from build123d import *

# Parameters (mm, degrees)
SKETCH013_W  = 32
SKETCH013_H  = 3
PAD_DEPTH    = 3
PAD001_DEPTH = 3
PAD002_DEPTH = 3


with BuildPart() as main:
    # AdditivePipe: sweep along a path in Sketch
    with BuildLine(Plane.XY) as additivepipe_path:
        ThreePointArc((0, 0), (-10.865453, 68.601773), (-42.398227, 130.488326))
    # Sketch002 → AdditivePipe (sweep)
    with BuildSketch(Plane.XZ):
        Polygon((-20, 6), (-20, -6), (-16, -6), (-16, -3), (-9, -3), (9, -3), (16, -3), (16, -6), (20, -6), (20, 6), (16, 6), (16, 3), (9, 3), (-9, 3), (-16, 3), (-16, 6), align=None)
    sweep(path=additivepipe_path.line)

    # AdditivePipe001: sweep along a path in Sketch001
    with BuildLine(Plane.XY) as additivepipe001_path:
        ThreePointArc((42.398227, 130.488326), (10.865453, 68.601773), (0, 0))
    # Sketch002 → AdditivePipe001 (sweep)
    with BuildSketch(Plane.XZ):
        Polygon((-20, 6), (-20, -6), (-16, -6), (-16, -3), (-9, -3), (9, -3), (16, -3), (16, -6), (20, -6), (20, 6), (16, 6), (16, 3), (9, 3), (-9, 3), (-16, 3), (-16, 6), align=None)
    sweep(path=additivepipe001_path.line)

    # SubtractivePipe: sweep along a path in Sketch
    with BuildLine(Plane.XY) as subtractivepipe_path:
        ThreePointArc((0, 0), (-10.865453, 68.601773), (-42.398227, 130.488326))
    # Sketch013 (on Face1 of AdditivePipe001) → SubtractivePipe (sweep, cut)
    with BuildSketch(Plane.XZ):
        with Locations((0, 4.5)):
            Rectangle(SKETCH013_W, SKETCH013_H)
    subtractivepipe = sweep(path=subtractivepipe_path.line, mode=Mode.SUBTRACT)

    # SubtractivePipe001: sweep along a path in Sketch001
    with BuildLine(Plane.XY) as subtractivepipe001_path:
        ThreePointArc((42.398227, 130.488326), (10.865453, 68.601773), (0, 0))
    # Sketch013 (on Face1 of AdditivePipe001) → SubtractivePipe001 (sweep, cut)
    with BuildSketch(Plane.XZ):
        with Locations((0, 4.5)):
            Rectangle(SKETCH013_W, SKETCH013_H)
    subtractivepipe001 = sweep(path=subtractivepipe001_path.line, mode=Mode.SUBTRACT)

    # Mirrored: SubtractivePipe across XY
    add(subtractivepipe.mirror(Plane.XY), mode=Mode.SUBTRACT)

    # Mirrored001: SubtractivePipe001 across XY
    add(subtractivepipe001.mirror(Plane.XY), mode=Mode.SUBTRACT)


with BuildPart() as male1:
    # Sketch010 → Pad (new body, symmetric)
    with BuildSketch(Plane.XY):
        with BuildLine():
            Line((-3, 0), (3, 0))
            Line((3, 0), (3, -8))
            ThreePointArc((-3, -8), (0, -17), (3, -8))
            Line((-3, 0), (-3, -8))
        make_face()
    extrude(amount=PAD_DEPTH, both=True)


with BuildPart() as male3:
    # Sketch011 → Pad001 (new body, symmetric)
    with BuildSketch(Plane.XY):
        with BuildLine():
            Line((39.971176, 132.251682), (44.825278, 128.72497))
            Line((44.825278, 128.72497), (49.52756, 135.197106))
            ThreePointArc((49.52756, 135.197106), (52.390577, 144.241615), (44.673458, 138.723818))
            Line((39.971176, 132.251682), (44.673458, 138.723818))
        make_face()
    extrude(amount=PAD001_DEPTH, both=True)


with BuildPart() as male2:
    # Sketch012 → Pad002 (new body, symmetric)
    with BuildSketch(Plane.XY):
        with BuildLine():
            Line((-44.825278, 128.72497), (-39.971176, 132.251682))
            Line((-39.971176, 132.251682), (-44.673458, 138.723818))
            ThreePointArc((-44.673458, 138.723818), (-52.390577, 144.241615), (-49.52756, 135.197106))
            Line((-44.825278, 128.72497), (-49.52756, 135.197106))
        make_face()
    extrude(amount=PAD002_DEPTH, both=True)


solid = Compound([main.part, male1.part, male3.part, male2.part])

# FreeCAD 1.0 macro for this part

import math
import FreeCAD as App
import Part
import Sketcher
Q = App.Units.Quantity

doc = App.newDocument("Part")
params = doc.addObject("Spreadsheet::Sheet", "Params")
for row, (alias, value) in enumerate([
    ("sketch1_width", "4 mm"),
    ("sketch1_width2", "32 mm"),
    ("sketch1_height", "12 mm"),
    ("sketch1_height2", "3 mm"),
    ("sketch3_width", "4 mm"),
    ("sketch3_width2", "32 mm"),
    ("sketch3_height", "12 mm"),
    ("sketch3_height2", "3 mm"),
    ("sketch5_width", "32 mm"),
    ("sketch5_height", "3 mm"),
    ("sketch7_width", "32 mm"),
    ("sketch7_height", "3 mm"),
    ("sketch9_radius", "5 mm"),
    ("sketch9_width", "6 mm"),
    ("sketch9_height", "8 mm"),
    ("pad1_length", "6 mm"),
    ("sketch10_radius", "5 mm"),
    ("sketch10_length", "6 mm"),
    ("sketch10_length2", "8 mm"),
    ("pad2_length", "6 mm"),
    ("sketch11_radius", "5 mm"),
    ("sketch11_length", "6 mm"),
    ("sketch11_length2", "8 mm"),
    ("pad3_length", "6 mm"),
], start=1):
    params.set(f"A{row}", alias)
    params.set(f"B{row}", "=" + value)
    params.setAlias(f"B{row}", alias)

body = doc.addObject("PartDesign::Body", "Body")

sketch1 = doc.addObject("Sketcher::SketchObject", "Sketch")
body.addObject(sketch1)
sketch1.AttachmentSupport = (doc.XZ_Plane, [""])
sketch1.MapMode = "FlatFace"
sketch1.addGeometry(Part.LineSegment(App.Vector(-20, 6, 0), App.Vector(-20, -6, 0)), False)
sketch1.addGeometry(Part.LineSegment(App.Vector(-20, -6, 0), App.Vector(-16, -6, 0)), False)
sketch1.addGeometry(Part.LineSegment(App.Vector(-16, -6, 0), App.Vector(-16, -3, 0)), False)
sketch1.addGeometry(Part.LineSegment(App.Vector(-16, -3, 0), App.Vector(16, -3, 0)), False)
sketch1.addGeometry(Part.LineSegment(App.Vector(16, -3, 0), App.Vector(16, -6, 0)), False)
sketch1.addGeometry(Part.LineSegment(App.Vector(16, -6, 0), App.Vector(20, -6, 0)), False)
sketch1.addGeometry(Part.LineSegment(App.Vector(20, -6, 0), App.Vector(20, 6, 0)), False)
sketch1.addGeometry(Part.LineSegment(App.Vector(20, 6, 0), App.Vector(16, 6, 0)), False)
sketch1.addGeometry(Part.LineSegment(App.Vector(16, 6, 0), App.Vector(16, 3, 0)), False)
sketch1.addGeometry(Part.LineSegment(App.Vector(16, 3, 0), App.Vector(-16, 3, 0)), False)
sketch1.addGeometry(Part.LineSegment(App.Vector(-16, 3, 0), App.Vector(-16, 6, 0)), False)
sketch1.addGeometry(Part.LineSegment(App.Vector(-16, 6, 0), App.Vector(-20, 6, 0)), False)
sketch1.addConstraint(Sketcher.Constraint("Coincident", 0, 2, 1, 1))
sketch1.addConstraint(Sketcher.Constraint("Coincident", 1, 2, 2, 1))
sketch1.addConstraint(Sketcher.Constraint("Coincident", 2, 2, 3, 1))
sketch1.addConstraint(Sketcher.Constraint("Coincident", 3, 2, 4, 1))
sketch1.addConstraint(Sketcher.Constraint("Coincident", 4, 2, 5, 1))
sketch1.addConstraint(Sketcher.Constraint("Coincident", 5, 2, 6, 1))
sketch1.addConstraint(Sketcher.Constraint("Coincident", 6, 2, 7, 1))
sketch1.addConstraint(Sketcher.Constraint("Coincident", 7, 2, 8, 1))
sketch1.addConstraint(Sketcher.Constraint("Coincident", 8, 2, 9, 1))
sketch1.addConstraint(Sketcher.Constraint("Coincident", 9, 2, 10, 1))
sketch1.addConstraint(Sketcher.Constraint("Coincident", 10, 2, 11, 1))
sketch1.addConstraint(Sketcher.Constraint("Coincident", 11, 2, 0, 1))
sketch1.addConstraint(Sketcher.Constraint("Vertical", 0))
sketch1.addConstraint(Sketcher.Constraint("Horizontal", 1))
sketch1.addConstraint(Sketcher.Constraint("Vertical", 2))
sketch1.addConstraint(Sketcher.Constraint("Horizontal", 3))
sketch1.addConstraint(Sketcher.Constraint("Vertical", 4))
sketch1.addConstraint(Sketcher.Constraint("Horizontal", 5))
sketch1.addConstraint(Sketcher.Constraint("Vertical", 6))
sketch1.addConstraint(Sketcher.Constraint("Horizontal", 7))
sketch1.addConstraint(Sketcher.Constraint("Vertical", 8))
sketch1.addConstraint(Sketcher.Constraint("Horizontal", 9))
sketch1.addConstraint(Sketcher.Constraint("Vertical", 10))
sketch1.addConstraint(Sketcher.Constraint("Horizontal", 11))
sketch1.addConstraint(Sketcher.Constraint("Symmetric", 0, 2, 6, 2, -1, 1))
sketch1.addConstraint(Sketcher.Constraint("Symmetric", 2, 2, 8, 2, -1, 1))
sketch1.addConstraint(Sketcher.Constraint("Symmetric", 4, 2, 10, 2, -1, 1))
sketch1.addConstraint(Sketcher.Constraint("Symmetric", 1, 2, 4, 2, -2))
sketch1.addConstraint(Sketcher.Constraint("DistanceX", 1, 1, 1, 2, Q("4 mm")))
sketch1.addConstraint(Sketcher.Constraint("DistanceX", 3, 1, 3, 2, Q("32 mm")))
sketch1.addConstraint(Sketcher.Constraint("DistanceY", 0, 2, 0, 1, Q("12 mm")))
sketch1.addConstraint(Sketcher.Constraint("DistanceY", 2, 1, 2, 2, Q("3 mm")))
sketch1.setExpression("Constraints[28]", "Params.sketch1_width")
sketch1.setExpression("Constraints[29]", "Params.sketch1_width2")
sketch1.setExpression("Constraints[30]", "Params.sketch1_height")
sketch1.setExpression("Constraints[31]", "Params.sketch1_height2")

sketch2 = doc.addObject("Sketcher::SketchObject", "Sketch001")
body.addObject(sketch2)
sketch2.AttachmentSupport = (doc.XY_Plane, [""])
sketch2.MapMode = "FlatFace"
sketch2.addGeometry(Part.ArcOfCircle(Part.Circle(App.Vector(-222, 0, 0), App.Vector(0, 0, 1), 222), math.radians(0), math.radians(36)), False)
sketch2.addConstraint(Sketcher.Constraint("Coincident", 0, 1, -1, 1))
sketch2.addConstraint(Sketcher.Constraint("Radius", 0, Q("221.999993 mm")))
sketch2.addConstraint(Sketcher.Constraint("DistanceX", 0, 2, -1, 1, Q("42.398227 mm")))
sketch2.addConstraint(Sketcher.Constraint("DistanceY", -1, 1, 0, 2, Q("130.488326 mm")))
doc.recompute()

additivepipe = doc.addObject("PartDesign::AdditivePipe", "AdditivePipe")
body.addObject(additivepipe)
additivepipe.Profile = sketch1
additivepipe.Spine = (sketch2, ["Edge1"])

sketch3 = doc.addObject("Sketcher::SketchObject", "Sketch002")
body.addObject(sketch3)
sketch3.AttachmentSupport = (doc.XZ_Plane, [""])
sketch3.MapMode = "FlatFace"
sketch3.addGeometry(Part.LineSegment(App.Vector(-20, 6, 0), App.Vector(-20, -6, 0)), False)
sketch3.addGeometry(Part.LineSegment(App.Vector(-20, -6, 0), App.Vector(-16, -6, 0)), False)
sketch3.addGeometry(Part.LineSegment(App.Vector(-16, -6, 0), App.Vector(-16, -3, 0)), False)
sketch3.addGeometry(Part.LineSegment(App.Vector(-16, -3, 0), App.Vector(16, -3, 0)), False)
sketch3.addGeometry(Part.LineSegment(App.Vector(16, -3, 0), App.Vector(16, -6, 0)), False)
sketch3.addGeometry(Part.LineSegment(App.Vector(16, -6, 0), App.Vector(20, -6, 0)), False)
sketch3.addGeometry(Part.LineSegment(App.Vector(20, -6, 0), App.Vector(20, 6, 0)), False)
sketch3.addGeometry(Part.LineSegment(App.Vector(20, 6, 0), App.Vector(16, 6, 0)), False)
sketch3.addGeometry(Part.LineSegment(App.Vector(16, 6, 0), App.Vector(16, 3, 0)), False)
sketch3.addGeometry(Part.LineSegment(App.Vector(16, 3, 0), App.Vector(-16, 3, 0)), False)
sketch3.addGeometry(Part.LineSegment(App.Vector(-16, 3, 0), App.Vector(-16, 6, 0)), False)
sketch3.addGeometry(Part.LineSegment(App.Vector(-16, 6, 0), App.Vector(-20, 6, 0)), False)
sketch3.addConstraint(Sketcher.Constraint("Coincident", 0, 2, 1, 1))
sketch3.addConstraint(Sketcher.Constraint("Coincident", 1, 2, 2, 1))
sketch3.addConstraint(Sketcher.Constraint("Coincident", 2, 2, 3, 1))
sketch3.addConstraint(Sketcher.Constraint("Coincident", 3, 2, 4, 1))
sketch3.addConstraint(Sketcher.Constraint("Coincident", 4, 2, 5, 1))
sketch3.addConstraint(Sketcher.Constraint("Coincident", 5, 2, 6, 1))
sketch3.addConstraint(Sketcher.Constraint("Coincident", 6, 2, 7, 1))
sketch3.addConstraint(Sketcher.Constraint("Coincident", 7, 2, 8, 1))
sketch3.addConstraint(Sketcher.Constraint("Coincident", 8, 2, 9, 1))
sketch3.addConstraint(Sketcher.Constraint("Coincident", 9, 2, 10, 1))
sketch3.addConstraint(Sketcher.Constraint("Coincident", 10, 2, 11, 1))
sketch3.addConstraint(Sketcher.Constraint("Coincident", 11, 2, 0, 1))
sketch3.addConstraint(Sketcher.Constraint("Vertical", 0))
sketch3.addConstraint(Sketcher.Constraint("Horizontal", 1))
sketch3.addConstraint(Sketcher.Constraint("Vertical", 2))
sketch3.addConstraint(Sketcher.Constraint("Horizontal", 3))
sketch3.addConstraint(Sketcher.Constraint("Vertical", 4))
sketch3.addConstraint(Sketcher.Constraint("Horizontal", 5))
sketch3.addConstraint(Sketcher.Constraint("Vertical", 6))
sketch3.addConstraint(Sketcher.Constraint("Horizontal", 7))
sketch3.addConstraint(Sketcher.Constraint("Vertical", 8))
sketch3.addConstraint(Sketcher.Constraint("Horizontal", 9))
sketch3.addConstraint(Sketcher.Constraint("Vertical", 10))
sketch3.addConstraint(Sketcher.Constraint("Horizontal", 11))
sketch3.addConstraint(Sketcher.Constraint("Symmetric", 0, 2, 6, 2, -1, 1))
sketch3.addConstraint(Sketcher.Constraint("Symmetric", 2, 2, 8, 2, -1, 1))
sketch3.addConstraint(Sketcher.Constraint("Symmetric", 4, 2, 10, 2, -1, 1))
sketch3.addConstraint(Sketcher.Constraint("Symmetric", 1, 2, 4, 2, -2))
sketch3.addConstraint(Sketcher.Constraint("DistanceX", 1, 1, 1, 2, Q("4 mm")))
sketch3.addConstraint(Sketcher.Constraint("DistanceX", 3, 1, 3, 2, Q("32 mm")))
sketch3.addConstraint(Sketcher.Constraint("DistanceY", 0, 2, 0, 1, Q("12 mm")))
sketch3.addConstraint(Sketcher.Constraint("DistanceY", 2, 1, 2, 2, Q("3 mm")))
sketch3.setExpression("Constraints[28]", "Params.sketch3_width")
sketch3.setExpression("Constraints[29]", "Params.sketch3_width2")
sketch3.setExpression("Constraints[30]", "Params.sketch3_height")
sketch3.setExpression("Constraints[31]", "Params.sketch3_height2")

sketch4 = doc.addObject("Sketcher::SketchObject", "Sketch003")
body.addObject(sketch4)
sketch4.AttachmentSupport = (doc.XY_Plane, [""])
sketch4.MapMode = "FlatFace"
sketch4.addGeometry(Part.ArcOfCircle(Part.Circle(App.Vector(222, 0, 0), App.Vector(0, 0, 1), 222), math.radians(144), math.radians(180)), False)
sketch4.addConstraint(Sketcher.Constraint("Coincident", 0, 2, -1, 1))
sketch4.addConstraint(Sketcher.Constraint("Radius", 0, Q("221.999993 mm")))
sketch4.addConstraint(Sketcher.Constraint("DistanceX", -1, 1, 0, 1, Q("42.398227 mm")))
sketch4.addConstraint(Sketcher.Constraint("DistanceY", -1, 1, 0, 1, Q("130.488326 mm")))
doc.recompute()

additivepipe2 = doc.addObject("PartDesign::AdditivePipe", "AdditivePipe001")
body.addObject(additivepipe2)
additivepipe2.Profile = sketch3
additivepipe2.Spine = (sketch4, ["Edge1"])

sketch5 = doc.addObject("Sketcher::SketchObject", "Sketch004")
body.addObject(sketch5)
sketch5.AttachmentSupport = (doc.XZ_Plane, [""])
sketch5.MapMode = "FlatFace"
sketch5.addGeometry(Part.LineSegment(App.Vector(-16, 6, 0), App.Vector(-16, 3, 0)), False)
sketch5.addGeometry(Part.LineSegment(App.Vector(-16, 3, 0), App.Vector(16, 3, 0)), False)
sketch5.addGeometry(Part.LineSegment(App.Vector(16, 3, 0), App.Vector(16, 6, 0)), False)
sketch5.addGeometry(Part.LineSegment(App.Vector(16, 6, 0), App.Vector(-16, 6, 0)), False)
sketch5.addConstraint(Sketcher.Constraint("Coincident", 0, 2, 1, 1))
sketch5.addConstraint(Sketcher.Constraint("Coincident", 1, 2, 2, 1))
sketch5.addConstraint(Sketcher.Constraint("Coincident", 2, 2, 3, 1))
sketch5.addConstraint(Sketcher.Constraint("Coincident", 3, 2, 0, 1))
sketch5.addConstraint(Sketcher.Constraint("Vertical", 0))
sketch5.addConstraint(Sketcher.Constraint("Horizontal", 1))
sketch5.addConstraint(Sketcher.Constraint("Vertical", 2))
sketch5.addConstraint(Sketcher.Constraint("Horizontal", 3))
sketch5.addConstraint(Sketcher.Constraint("DistanceX", 1, 1, 1, 2, Q("32 mm")))
sketch5.addConstraint(Sketcher.Constraint("DistanceY", 0, 2, 0, 1, Q("3 mm")))
sketch5.addConstraint(Sketcher.Constraint("DistanceX", 0, 2, -1, 1, Q("16 mm")))
sketch5.addConstraint(Sketcher.Constraint("DistanceY", -1, 1, 0, 2, Q("3 mm")))
sketch5.setExpression("Constraints[8]", "Params.sketch5_width")
sketch5.setExpression("Constraints[9]", "Params.sketch5_height")

sketch6 = doc.addObject("Sketcher::SketchObject", "Sketch005")
body.addObject(sketch6)
sketch6.AttachmentSupport = (doc.XY_Plane, [""])
sketch6.MapMode = "FlatFace"
sketch6.addGeometry(Part.ArcOfCircle(Part.Circle(App.Vector(-222, 0, 0), App.Vector(0, 0, 1), 222), math.radians(0), math.radians(36)), False)
sketch6.addConstraint(Sketcher.Constraint("Coincident", 0, 1, -1, 1))
sketch6.addConstraint(Sketcher.Constraint("Radius", 0, Q("221.999993 mm")))
sketch6.addConstraint(Sketcher.Constraint("DistanceX", 0, 2, -1, 1, Q("42.398227 mm")))
sketch6.addConstraint(Sketcher.Constraint("DistanceY", -1, 1, 0, 2, Q("130.488326 mm")))
doc.recompute()

subtractivepipe = doc.addObject("PartDesign::SubtractivePipe", "SubtractivePipe")
body.addObject(subtractivepipe)
subtractivepipe.Profile = sketch5
subtractivepipe.Spine = (sketch6, ["Edge1"])

sketch7 = doc.addObject("Sketcher::SketchObject", "Sketch006")
body.addObject(sketch7)
sketch7.AttachmentSupport = (doc.XZ_Plane, [""])
sketch7.MapMode = "FlatFace"
sketch7.addGeometry(Part.LineSegment(App.Vector(-16, 6, 0), App.Vector(-16, 3, 0)), False)
sketch7.addGeometry(Part.LineSegment(App.Vector(-16, 3, 0), App.Vector(16, 3, 0)), False)
sketch7.addGeometry(Part.LineSegment(App.Vector(16, 3, 0), App.Vector(16, 6, 0)), False)
sketch7.addGeometry(Part.LineSegment(App.Vector(16, 6, 0), App.Vector(-16, 6, 0)), False)
sketch7.addConstraint(Sketcher.Constraint("Coincident", 0, 2, 1, 1))
sketch7.addConstraint(Sketcher.Constraint("Coincident", 1, 2, 2, 1))
sketch7.addConstraint(Sketcher.Constraint("Coincident", 2, 2, 3, 1))
sketch7.addConstraint(Sketcher.Constraint("Coincident", 3, 2, 0, 1))
sketch7.addConstraint(Sketcher.Constraint("Vertical", 0))
sketch7.addConstraint(Sketcher.Constraint("Horizontal", 1))
sketch7.addConstraint(Sketcher.Constraint("Vertical", 2))
sketch7.addConstraint(Sketcher.Constraint("Horizontal", 3))
sketch7.addConstraint(Sketcher.Constraint("DistanceX", 1, 1, 1, 2, Q("32 mm")))
sketch7.addConstraint(Sketcher.Constraint("DistanceY", 0, 2, 0, 1, Q("3 mm")))
sketch7.addConstraint(Sketcher.Constraint("DistanceX", 0, 2, -1, 1, Q("16 mm")))
sketch7.addConstraint(Sketcher.Constraint("DistanceY", -1, 1, 0, 2, Q("3 mm")))
sketch7.setExpression("Constraints[8]", "Params.sketch7_width")
sketch7.setExpression("Constraints[9]", "Params.sketch7_height")

sketch8 = doc.addObject("Sketcher::SketchObject", "Sketch007")
body.addObject(sketch8)
sketch8.AttachmentSupport = (doc.XY_Plane, [""])
sketch8.MapMode = "FlatFace"
sketch8.addGeometry(Part.ArcOfCircle(Part.Circle(App.Vector(222, 0, 0), App.Vector(0, 0, 1), 222), math.radians(144), math.radians(180)), False)
sketch8.addConstraint(Sketcher.Constraint("Coincident", 0, 2, -1, 1))
sketch8.addConstraint(Sketcher.Constraint("Radius", 0, Q("221.999993 mm")))
sketch8.addConstraint(Sketcher.Constraint("DistanceX", -1, 1, 0, 1, Q("42.398227 mm")))
sketch8.addConstraint(Sketcher.Constraint("DistanceY", -1, 1, 0, 1, Q("130.488326 mm")))
doc.recompute()

subtractivepipe2 = doc.addObject("PartDesign::SubtractivePipe", "SubtractivePipe001")
body.addObject(subtractivepipe2)
subtractivepipe2.Profile = sketch7
subtractivepipe2.Spine = (sketch8, ["Edge1"])
doc.recompute()

mirrored = doc.addObject("PartDesign::Mirrored", "Mirrored")
body.addObject(mirrored)
mirrored.Originals = [subtractivepipe]
mirrored.MirrorPlane = (doc.XY_Plane, [""])
body.Tip = mirrored
doc.recompute()

mirrored2 = doc.addObject("PartDesign::Mirrored", "Mirrored001")
body.addObject(mirrored2)
mirrored2.Originals = [subtractivepipe2]
mirrored2.MirrorPlane = (doc.XY_Plane, [""])
body.Tip = mirrored2
body2 = doc.addObject("PartDesign::Body", "Body001")

sketch9 = doc.addObject("Sketcher::SketchObject", "Sketch008")
body2.addObject(sketch9)
sketch9.AttachmentSupport = (doc.getObject("XY_Plane001"), [""])
sketch9.MapMode = "FlatFace"
sketch9.addGeometry(Part.LineSegment(App.Vector(3, 0, 0), App.Vector(-3, 0, 0)), False)
sketch9.addGeometry(Part.LineSegment(App.Vector(-3, 0, 0), App.Vector(-3, -8, 0)), False)
sketch9.addGeometry(Part.ArcOfCircle(Part.Circle(App.Vector(0, -12, 0), App.Vector(0, 0, 1), 5), math.radians(127), math.radians(413)), False)
sketch9.addGeometry(Part.LineSegment(App.Vector(3, -8, 0), App.Vector(3, 0, 0)), False)
sketch9.addConstraint(Sketcher.Constraint("Coincident", 0, 2, 1, 1))
sketch9.addConstraint(Sketcher.Constraint("Coincident", 1, 2, 2, 1))
sketch9.addConstraint(Sketcher.Constraint("Coincident", 2, 2, 3, 1))
sketch9.addConstraint(Sketcher.Constraint("Coincident", 3, 2, 0, 1))
sketch9.addConstraint(Sketcher.Constraint("Horizontal", 0))
sketch9.addConstraint(Sketcher.Constraint("Vertical", 1))
sketch9.addConstraint(Sketcher.Constraint("Vertical", 3))
sketch9.addConstraint(Sketcher.Constraint("Symmetric", 0, 2, 3, 2, -1, 1))
sketch9.addConstraint(Sketcher.Constraint("PointOnObject", 2, 3, -2))
sketch9.addConstraint(Sketcher.Constraint("Radius", 2, Q("5 mm")))
sketch9.addConstraint(Sketcher.Constraint("DistanceX", 0, 2, 0, 1, Q("6 mm")))
sketch9.addConstraint(Sketcher.Constraint("DistanceY", 1, 2, 1, 1, Q("8 mm")))
sketch9.setExpression("Constraints[9]", "Params.sketch9_radius")
sketch9.setExpression("Constraints[10]", "Params.sketch9_width")
sketch9.setExpression("Constraints[11]", "Params.sketch9_height")
pad1 = doc.addObject("PartDesign::Pad", "Pad")
body2.addObject(pad1)
pad1.Profile = sketch9
pad1.setExpression("Length", "Params.pad1_length")
pad1.Midplane = True
body3 = doc.addObject("PartDesign::Body", "Body002")

sketch10 = doc.addObject("Sketcher::SketchObject", "Sketch009")
body3.addObject(sketch10)
sketch10.AttachmentSupport = (doc.getObject("XY_Plane002"), [""])
sketch10.MapMode = "FlatFace"
sketch10.addGeometry(Part.LineSegment(App.Vector(40, 132, 0), App.Vector(45, 129, 0)), False)
sketch10.addGeometry(Part.LineSegment(App.Vector(45, 129, 0), App.Vector(50, 135, 0)), False)
sketch10.addGeometry(Part.ArcOfCircle(Part.Circle(App.Vector(49, 140, 0), App.Vector(0, 0, 1), 5), math.radians(-89), math.radians(197)), False)
sketch10.addGeometry(Part.LineSegment(App.Vector(45, 139, 0), App.Vector(40, 132, 0)), False)
sketch10.addConstraint(Sketcher.Constraint("Coincident", 0, 2, 1, 1))
sketch10.addConstraint(Sketcher.Constraint("Coincident", 1, 2, 2, 1))
sketch10.addConstraint(Sketcher.Constraint("Coincident", 2, 2, 3, 1))
sketch10.addConstraint(Sketcher.Constraint("Coincident", 3, 2, 0, 1))
sketch10.addConstraint(Sketcher.Constraint("Perpendicular", 0, 1))
sketch10.addConstraint(Sketcher.Constraint("Parallel", 1, 3))
sketch10.addConstraint(Sketcher.Constraint("Equal", 1, 3))
sketch10.addConstraint(Sketcher.Constraint("Radius", 2, Q("5 mm")))
sketch10.addConstraint(Sketcher.Constraint("Angle", 0, Q("-36.000004 deg")))
sketch10.addConstraint(Sketcher.Constraint("Distance", 0, Q("6 mm")))
sketch10.addConstraint(Sketcher.Constraint("Distance", 1, Q("8 mm")))
sketch10.addConstraint(Sketcher.Constraint("DistanceX", -1, 1, 2, 3, Q("49.45165 mm")))
sketch10.addConstraint(Sketcher.Constraint("DistanceY", -1, 1, 2, 3, Q("140.19653 mm")))
sketch10.setExpression("Constraints[7]", "Params.sketch10_radius")
sketch10.setExpression("Constraints[9]", "Params.sketch10_length")
sketch10.setExpression("Constraints[10]", "Params.sketch10_length2")
pad2 = doc.addObject("PartDesign::Pad", "Pad001")
body3.addObject(pad2)
pad2.Profile = sketch10
pad2.setExpression("Length", "Params.pad2_length")
pad2.Midplane = True
body4 = doc.addObject("PartDesign::Body", "Body003")

sketch11 = doc.addObject("Sketcher::SketchObject", "Sketch010")
body4.addObject(sketch11)
sketch11.AttachmentSupport = (doc.getObject("XY_Plane003"), [""])
sketch11.MapMode = "FlatFace"
sketch11.addGeometry(Part.LineSegment(App.Vector(-45, 129, 0), App.Vector(-40, 132, 0)), False)
sketch11.addGeometry(Part.LineSegment(App.Vector(-40, 132, 0), App.Vector(-45, 139, 0)), False)
sketch11.addGeometry(Part.ArcOfCircle(Part.Circle(App.Vector(-49, 140, 0), App.Vector(0, 0, 1), 5), math.radians(-17), math.radians(269)), False)
sketch11.addGeometry(Part.LineSegment(App.Vector(-50, 135, 0), App.Vector(-45, 129, 0)), False)
sketch11.addConstraint(Sketcher.Constraint("Coincident", 0, 2, 1, 1))
sketch11.addConstraint(Sketcher.Constraint("Coincident", 1, 2, 2, 1))
sketch11.addConstraint(Sketcher.Constraint("Coincident", 2, 2, 3, 1))
sketch11.addConstraint(Sketcher.Constraint("Coincident", 3, 2, 0, 1))
sketch11.addConstraint(Sketcher.Constraint("Perpendicular", 0, 1))
sketch11.addConstraint(Sketcher.Constraint("Parallel", 1, 3))
sketch11.addConstraint(Sketcher.Constraint("Equal", 1, 3))
sketch11.addConstraint(Sketcher.Constraint("Radius", 2, Q("5 mm")))
sketch11.addConstraint(Sketcher.Constraint("Angle", 0, Q("36.000004 deg")))
sketch11.addConstraint(Sketcher.Constraint("Distance", 0, Q("6 mm")))
sketch11.addConstraint(Sketcher.Constraint("Distance", 1, Q("8 mm")))
sketch11.addConstraint(Sketcher.Constraint("DistanceX", 2, 3, -1, 1, Q("49.45165 mm")))
sketch11.addConstraint(Sketcher.Constraint("DistanceY", -1, 1, 2, 3, Q("140.19653 mm")))
sketch11.setExpression("Constraints[7]", "Params.sketch11_radius")
sketch11.setExpression("Constraints[9]", "Params.sketch11_length")
sketch11.setExpression("Constraints[10]", "Params.sketch11_length2")
pad3 = doc.addObject("PartDesign::Pad", "Pad002")
body4.addObject(pad3)
pad3.Profile = sketch11
pad3.setExpression("Length", "Params.pad3_length")
pad3.Midplane = True

doc.recompute()
